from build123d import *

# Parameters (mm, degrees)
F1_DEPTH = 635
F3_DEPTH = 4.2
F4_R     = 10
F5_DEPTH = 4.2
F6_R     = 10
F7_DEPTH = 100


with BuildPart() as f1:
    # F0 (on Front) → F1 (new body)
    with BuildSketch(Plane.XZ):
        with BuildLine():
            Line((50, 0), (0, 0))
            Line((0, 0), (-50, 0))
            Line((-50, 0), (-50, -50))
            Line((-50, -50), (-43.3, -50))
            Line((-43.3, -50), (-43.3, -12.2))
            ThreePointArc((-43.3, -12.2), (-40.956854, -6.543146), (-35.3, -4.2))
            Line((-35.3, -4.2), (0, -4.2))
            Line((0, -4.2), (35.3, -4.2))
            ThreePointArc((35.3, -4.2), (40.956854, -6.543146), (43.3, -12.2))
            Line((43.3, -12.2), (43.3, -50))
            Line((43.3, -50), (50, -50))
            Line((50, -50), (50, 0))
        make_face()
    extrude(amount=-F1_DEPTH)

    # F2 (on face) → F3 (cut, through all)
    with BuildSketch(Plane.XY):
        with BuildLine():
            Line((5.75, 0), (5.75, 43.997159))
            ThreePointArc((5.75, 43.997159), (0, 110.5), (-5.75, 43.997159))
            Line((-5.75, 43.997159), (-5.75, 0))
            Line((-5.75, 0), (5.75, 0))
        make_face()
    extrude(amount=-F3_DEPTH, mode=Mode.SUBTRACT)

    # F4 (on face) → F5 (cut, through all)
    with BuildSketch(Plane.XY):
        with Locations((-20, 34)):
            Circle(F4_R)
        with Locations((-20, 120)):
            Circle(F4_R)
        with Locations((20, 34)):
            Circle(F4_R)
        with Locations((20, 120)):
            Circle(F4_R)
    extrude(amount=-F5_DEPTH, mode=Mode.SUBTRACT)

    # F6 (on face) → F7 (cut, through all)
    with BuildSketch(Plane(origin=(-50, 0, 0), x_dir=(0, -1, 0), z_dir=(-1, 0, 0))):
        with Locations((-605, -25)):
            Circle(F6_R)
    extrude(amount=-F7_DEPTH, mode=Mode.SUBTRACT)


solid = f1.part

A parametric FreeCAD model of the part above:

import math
import FreeCAD as App
import Part
import Sketcher
Q = App.Units.Quantity

doc = App.newDocument("Part")
params = doc.addObject("Spreadsheet::Sheet", "Params")
for row, (alias, value) in enumerate([
    ("sketch1_radius", "8.000001 mm"),
    ("sketch1_width", "100 mm"),
    ("sketch1_height", "50 mm"),
    ("sketch1_width2", "6.7 mm"),
    ("sketch1_height2", "37.8 mm"),
    ("pad1_length", "635 mm"),
    ("sketch2_radius", "33.5 mm"),
    ("sketch2_width", "11.5 mm"),
    ("sketch3_diameter", "20 mm"),
    ("sketch4_diameter", "20 mm"),
], start=1):
    params.set(f"A{row}", alias)
    params.set(f"B{row}", "=" + value)
    params.setAlias(f"B{row}", alias)

body = doc.addObject("PartDesign::Body", "Body")

sketch1 = doc.addObject("Sketcher::SketchObject", "Sketch")
body.addObject(sketch1)
sketch1.AttachmentSupport = (doc.XZ_Plane, [""])
sketch1.MapMode = "FlatFace"
sketch1.addGeometry([
    Part.LineSegment(App.Vector(50, 0, 0), App.Vector(-50, 0, 0)),
    Part.LineSegment(App.Vector(-50, 0, 0), App.Vector(-50, -50, 0)),
    Part.LineSegment(App.Vector(-50, -50, 0), App.Vector(-43, -50, 0)),
    Part.LineSegment(App.Vector(-43, -50, 0), App.Vector(-43, -12, 0)),
    Part.ArcOfCircle(Part.Circle(App.Vector(-35, -12, 0), App.Vector(0, 0, 1), 8), math.radians(90), math.radians(180)),
    Part.LineSegment(App.Vector(-35, -4, 0), App.Vector(35, -4, 0)),
    Part.ArcOfCircle(Part.Circle(App.Vector(35, -12, 0), App.Vector(0, 0, 1), 8), math.radians(0), math.radians(90)),
    Part.LineSegment(App.Vector(43, -12, 0), App.Vector(43, -50, 0)),
    Part.LineSegment(App.Vector(43, -50, 0), App.Vector(50, -50, 0)),
    Part.LineSegment(App.Vector(50, -50, 0), App.Vector(50, 0, 0)),
], False)
sketch1.addConstraint([
    Sketcher.Constraint("Coincident", 0, 2, 1, 1),
    Sketcher.Constraint("Coincident", 1, 2, 2, 1),
    Sketcher.Constraint("Coincident", 2, 2, 3, 1),
    Sketcher.Constraint("Tangent", 3, 2, 4, 2),
    Sketcher.Constraint("Tangent", 4, 1, 5, 1),
    Sketcher.Constraint("Tangent", 5, 2, 6, 2),
    Sketcher.Constraint("Tangent", 6, 1, 7, 1),
    Sketcher.Constraint("Coincident", 7, 2, 8, 1),
    Sketcher.Constraint("Coincident", 8, 2, 9, 1),
    Sketcher.Constraint("Coincident", 9, 2, 0, 1),
    Sketcher.Constraint("Horizontal", 0),
    Sketcher.Constraint("Vertical", 1),
    Sketcher.Constraint("Horizontal", 2),
    Sketcher.Constraint("Vertical", 3),
    Sketcher.Constraint("Horizontal", 5),
    Sketcher.Constraint("Vertical", 7),
    Sketcher.Constraint("Horizontal", 8),
    Sketcher.Constraint("Vertical", 9),
    Sketcher.Constraint("Equal", 4, 6),
    Sketcher.Constraint("Symmetric", 0, 2, 9, 2, -1, 1),
    Sketcher.Constraint("Symmetric", 2, 2, 7, 2, -2),
    Sketcher.Constraint("Radius", 4, Q("8.000001 mm")),
    Sketcher.Constraint("DistanceX", 0, 2, 0, 1, Q("100 mm")),
    Sketcher.Constraint("DistanceY", 1, 2, 1, 1, Q("50 mm")),
    Sketcher.Constraint("DistanceX", 2, 1, 2, 2, Q("6.7 mm")),
    Sketcher.Constraint("DistanceY", 3, 1, 3, 2, Q("37.8 mm")),
])
sketch1.setExpression("Constraints[21]", "Params.sketch1_radius")
sketch1.setExpression("Constraints[22]", "Params.sketch1_width")
sketch1.setExpression("Constraints[23]", "Params.sketch1_height")
sketch1.setExpression("Constraints[24]", "Params.sketch1_width2")
sketch1.setExpression("Constraints[25]", "Params.sketch1_height2")
pad1 = doc.addObject("PartDesign::Pad", "Pad")
body.addObject(pad1)
pad1.Profile = sketch1
pad1.setExpression("Length", "Params.pad1_length")
pad1.Reversed = True

sketch2 = doc.addObject("Sketcher::SketchObject", "Sketch001")
body.addObject(sketch2)
sketch2.AttachmentSupport = (doc.XY_Plane, [""])
sketch2.MapMode = "FlatFace"
sketch2.addGeometry([
    Part.LineSegment(App.Vector(6, 0, 0), App.Vector(6, 44, 0)),
    Part.ArcOfCircle(Part.Circle(App.Vector(0, 77, 0), App.Vector(0, 0, 1), 34), math.radians(-80), math.radians(260)),
    Part.LineSegment(App.Vector(-6, 44, 0), App.Vector(-6, 0, 0)),
    Part.LineSegment(App.Vector(-6, 0, 0), App.Vector(6, 0, 0)),
], False)
sketch2.addConstraint([
    Sketcher.Constraint("Coincident", 0, 2, 1, 1),
    Sketcher.Constraint("Coincident", 1, 2, 2, 1),
    Sketcher.Constraint("Coincident", 2, 2, 3, 1),
    Sketcher.Constraint("Coincident", 3, 2, 0, 1),
    Sketcher.Constraint("Vertical", 0),
    Sketcher.Constraint("Vertical", 2),
    Sketcher.Constraint("Horizontal", 3),
    Sketcher.Constraint("Symmetric", 2, 2, 3, 2, -1, 1),
    Sketcher.Constraint("PointOnObject", 1, 3, -2),
    Sketcher.Constraint("Radius", 1, Q("33.5 mm")),
    Sketcher.Constraint("DistanceX", 3, 1, 3, 2, Q("11.5 mm")),
    Sketcher.Constraint("DistanceY", -1, 1, 1, 3, Q("77 mm")),
])
sketch2.setExpression("Constraints[9]", "Params.sketch2_radius")
sketch2.setExpression("Constraints[10]", "Params.sketch2_width")
pocket1 = doc.addObject("PartDesign::Pocket", "Pocket")
body.addObject(pocket1)
pocket1.Profile = sketch2
pocket1.Type = "ThroughAll"

sketch3 = doc.addObject("Sketcher::SketchObject", "Sketch002")
body.addObject(sketch3)
sketch3.AttachmentSupport = (doc.XY_Plane, [""])
sketch3.MapMode = "FlatFace"
sketch3.addGeometry([
    Part.Circle(App.Vector(-20, 34, 0), App.Vector(0, 0, 1), 10),
    Part.Circle(App.Vector(-20, 120, 0), App.Vector(0, 0, 1), 10),
    Part.Circle(App.Vector(20, 34, 0), App.Vector(0, 0, 1), 10),
    Part.Circle(App.Vector(20, 120, 0), App.Vector(0, 0, 1), 10),
], False)
sketch3.addConstraint([
    Sketcher.Constraint("Equal", 0, 1),
    Sketcher.Constraint("Equal", 1, 2),
    Sketcher.Constraint("Equal", 2, 3),
    Sketcher.Constraint("Symmetric", 0, 3, 2, 3, -2),
    Sketcher.Constraint("Symmetric", 1, 3, 3, 3, -2),
    Sketcher.Constraint("Vertical", 0, 3, 1, 3),
    Sketcher.Constraint("Diameter", 0, Q("20 mm")),
    Sketcher.Constraint("DistanceX", 0, 3, -1, 1, Q("20 mm")),
    Sketcher.Constraint("DistanceY", -1, 1, 0, 3, Q("34 mm")),
    Sketcher.Constraint("DistanceY", -1, 1, 1, 3, Q("120 mm")),
])
sketch3.setExpression("Constraints[6]", "Params.sketch3_diameter")
pocket2 = doc.addObject("PartDesign::Pocket", "Pocket001")
body.addObject(pocket2)
pocket2.Profile = sketch3
pocket2.Type = "ThroughAll"

sketch4 = doc.addObject("Sketcher::SketchObject", "Sketch003")
body.addObject(sketch4)
sketch4.AttachmentSupport = (doc.YZ_Plane, [""])
sketch4.MapMode = "FlatFace"
sketch4.AttachmentOffset = App.Placement(App.Vector(0, 0, -50), App.Rotation())
sketch4.addGeometry(Part.Circle(App.Vector(605, -25, 0), App.Vector(0, 0, 1), 10), False)
sketch4.addConstraint([
    Sketcher.Constraint("Diameter", 0, Q("20 mm")),
    Sketcher.Constraint("DistanceX", -1, 1, 0, 3, Q("605 mm")),
    Sketcher.Constraint("DistanceY", 0, 3, -1, 1, Q("25 mm")),
])
sketch4.setExpression("Constraints[0]", "Params.sketch4_diameter")
pocket3 = doc.addObject("PartDesign::Pocket", "Pocket002")
body.addObject(pocket3)
pocket3.Profile = sketch4
pocket3.Type = "ThroughAll"
pocket3.Reversed = True

doc.recompute()
